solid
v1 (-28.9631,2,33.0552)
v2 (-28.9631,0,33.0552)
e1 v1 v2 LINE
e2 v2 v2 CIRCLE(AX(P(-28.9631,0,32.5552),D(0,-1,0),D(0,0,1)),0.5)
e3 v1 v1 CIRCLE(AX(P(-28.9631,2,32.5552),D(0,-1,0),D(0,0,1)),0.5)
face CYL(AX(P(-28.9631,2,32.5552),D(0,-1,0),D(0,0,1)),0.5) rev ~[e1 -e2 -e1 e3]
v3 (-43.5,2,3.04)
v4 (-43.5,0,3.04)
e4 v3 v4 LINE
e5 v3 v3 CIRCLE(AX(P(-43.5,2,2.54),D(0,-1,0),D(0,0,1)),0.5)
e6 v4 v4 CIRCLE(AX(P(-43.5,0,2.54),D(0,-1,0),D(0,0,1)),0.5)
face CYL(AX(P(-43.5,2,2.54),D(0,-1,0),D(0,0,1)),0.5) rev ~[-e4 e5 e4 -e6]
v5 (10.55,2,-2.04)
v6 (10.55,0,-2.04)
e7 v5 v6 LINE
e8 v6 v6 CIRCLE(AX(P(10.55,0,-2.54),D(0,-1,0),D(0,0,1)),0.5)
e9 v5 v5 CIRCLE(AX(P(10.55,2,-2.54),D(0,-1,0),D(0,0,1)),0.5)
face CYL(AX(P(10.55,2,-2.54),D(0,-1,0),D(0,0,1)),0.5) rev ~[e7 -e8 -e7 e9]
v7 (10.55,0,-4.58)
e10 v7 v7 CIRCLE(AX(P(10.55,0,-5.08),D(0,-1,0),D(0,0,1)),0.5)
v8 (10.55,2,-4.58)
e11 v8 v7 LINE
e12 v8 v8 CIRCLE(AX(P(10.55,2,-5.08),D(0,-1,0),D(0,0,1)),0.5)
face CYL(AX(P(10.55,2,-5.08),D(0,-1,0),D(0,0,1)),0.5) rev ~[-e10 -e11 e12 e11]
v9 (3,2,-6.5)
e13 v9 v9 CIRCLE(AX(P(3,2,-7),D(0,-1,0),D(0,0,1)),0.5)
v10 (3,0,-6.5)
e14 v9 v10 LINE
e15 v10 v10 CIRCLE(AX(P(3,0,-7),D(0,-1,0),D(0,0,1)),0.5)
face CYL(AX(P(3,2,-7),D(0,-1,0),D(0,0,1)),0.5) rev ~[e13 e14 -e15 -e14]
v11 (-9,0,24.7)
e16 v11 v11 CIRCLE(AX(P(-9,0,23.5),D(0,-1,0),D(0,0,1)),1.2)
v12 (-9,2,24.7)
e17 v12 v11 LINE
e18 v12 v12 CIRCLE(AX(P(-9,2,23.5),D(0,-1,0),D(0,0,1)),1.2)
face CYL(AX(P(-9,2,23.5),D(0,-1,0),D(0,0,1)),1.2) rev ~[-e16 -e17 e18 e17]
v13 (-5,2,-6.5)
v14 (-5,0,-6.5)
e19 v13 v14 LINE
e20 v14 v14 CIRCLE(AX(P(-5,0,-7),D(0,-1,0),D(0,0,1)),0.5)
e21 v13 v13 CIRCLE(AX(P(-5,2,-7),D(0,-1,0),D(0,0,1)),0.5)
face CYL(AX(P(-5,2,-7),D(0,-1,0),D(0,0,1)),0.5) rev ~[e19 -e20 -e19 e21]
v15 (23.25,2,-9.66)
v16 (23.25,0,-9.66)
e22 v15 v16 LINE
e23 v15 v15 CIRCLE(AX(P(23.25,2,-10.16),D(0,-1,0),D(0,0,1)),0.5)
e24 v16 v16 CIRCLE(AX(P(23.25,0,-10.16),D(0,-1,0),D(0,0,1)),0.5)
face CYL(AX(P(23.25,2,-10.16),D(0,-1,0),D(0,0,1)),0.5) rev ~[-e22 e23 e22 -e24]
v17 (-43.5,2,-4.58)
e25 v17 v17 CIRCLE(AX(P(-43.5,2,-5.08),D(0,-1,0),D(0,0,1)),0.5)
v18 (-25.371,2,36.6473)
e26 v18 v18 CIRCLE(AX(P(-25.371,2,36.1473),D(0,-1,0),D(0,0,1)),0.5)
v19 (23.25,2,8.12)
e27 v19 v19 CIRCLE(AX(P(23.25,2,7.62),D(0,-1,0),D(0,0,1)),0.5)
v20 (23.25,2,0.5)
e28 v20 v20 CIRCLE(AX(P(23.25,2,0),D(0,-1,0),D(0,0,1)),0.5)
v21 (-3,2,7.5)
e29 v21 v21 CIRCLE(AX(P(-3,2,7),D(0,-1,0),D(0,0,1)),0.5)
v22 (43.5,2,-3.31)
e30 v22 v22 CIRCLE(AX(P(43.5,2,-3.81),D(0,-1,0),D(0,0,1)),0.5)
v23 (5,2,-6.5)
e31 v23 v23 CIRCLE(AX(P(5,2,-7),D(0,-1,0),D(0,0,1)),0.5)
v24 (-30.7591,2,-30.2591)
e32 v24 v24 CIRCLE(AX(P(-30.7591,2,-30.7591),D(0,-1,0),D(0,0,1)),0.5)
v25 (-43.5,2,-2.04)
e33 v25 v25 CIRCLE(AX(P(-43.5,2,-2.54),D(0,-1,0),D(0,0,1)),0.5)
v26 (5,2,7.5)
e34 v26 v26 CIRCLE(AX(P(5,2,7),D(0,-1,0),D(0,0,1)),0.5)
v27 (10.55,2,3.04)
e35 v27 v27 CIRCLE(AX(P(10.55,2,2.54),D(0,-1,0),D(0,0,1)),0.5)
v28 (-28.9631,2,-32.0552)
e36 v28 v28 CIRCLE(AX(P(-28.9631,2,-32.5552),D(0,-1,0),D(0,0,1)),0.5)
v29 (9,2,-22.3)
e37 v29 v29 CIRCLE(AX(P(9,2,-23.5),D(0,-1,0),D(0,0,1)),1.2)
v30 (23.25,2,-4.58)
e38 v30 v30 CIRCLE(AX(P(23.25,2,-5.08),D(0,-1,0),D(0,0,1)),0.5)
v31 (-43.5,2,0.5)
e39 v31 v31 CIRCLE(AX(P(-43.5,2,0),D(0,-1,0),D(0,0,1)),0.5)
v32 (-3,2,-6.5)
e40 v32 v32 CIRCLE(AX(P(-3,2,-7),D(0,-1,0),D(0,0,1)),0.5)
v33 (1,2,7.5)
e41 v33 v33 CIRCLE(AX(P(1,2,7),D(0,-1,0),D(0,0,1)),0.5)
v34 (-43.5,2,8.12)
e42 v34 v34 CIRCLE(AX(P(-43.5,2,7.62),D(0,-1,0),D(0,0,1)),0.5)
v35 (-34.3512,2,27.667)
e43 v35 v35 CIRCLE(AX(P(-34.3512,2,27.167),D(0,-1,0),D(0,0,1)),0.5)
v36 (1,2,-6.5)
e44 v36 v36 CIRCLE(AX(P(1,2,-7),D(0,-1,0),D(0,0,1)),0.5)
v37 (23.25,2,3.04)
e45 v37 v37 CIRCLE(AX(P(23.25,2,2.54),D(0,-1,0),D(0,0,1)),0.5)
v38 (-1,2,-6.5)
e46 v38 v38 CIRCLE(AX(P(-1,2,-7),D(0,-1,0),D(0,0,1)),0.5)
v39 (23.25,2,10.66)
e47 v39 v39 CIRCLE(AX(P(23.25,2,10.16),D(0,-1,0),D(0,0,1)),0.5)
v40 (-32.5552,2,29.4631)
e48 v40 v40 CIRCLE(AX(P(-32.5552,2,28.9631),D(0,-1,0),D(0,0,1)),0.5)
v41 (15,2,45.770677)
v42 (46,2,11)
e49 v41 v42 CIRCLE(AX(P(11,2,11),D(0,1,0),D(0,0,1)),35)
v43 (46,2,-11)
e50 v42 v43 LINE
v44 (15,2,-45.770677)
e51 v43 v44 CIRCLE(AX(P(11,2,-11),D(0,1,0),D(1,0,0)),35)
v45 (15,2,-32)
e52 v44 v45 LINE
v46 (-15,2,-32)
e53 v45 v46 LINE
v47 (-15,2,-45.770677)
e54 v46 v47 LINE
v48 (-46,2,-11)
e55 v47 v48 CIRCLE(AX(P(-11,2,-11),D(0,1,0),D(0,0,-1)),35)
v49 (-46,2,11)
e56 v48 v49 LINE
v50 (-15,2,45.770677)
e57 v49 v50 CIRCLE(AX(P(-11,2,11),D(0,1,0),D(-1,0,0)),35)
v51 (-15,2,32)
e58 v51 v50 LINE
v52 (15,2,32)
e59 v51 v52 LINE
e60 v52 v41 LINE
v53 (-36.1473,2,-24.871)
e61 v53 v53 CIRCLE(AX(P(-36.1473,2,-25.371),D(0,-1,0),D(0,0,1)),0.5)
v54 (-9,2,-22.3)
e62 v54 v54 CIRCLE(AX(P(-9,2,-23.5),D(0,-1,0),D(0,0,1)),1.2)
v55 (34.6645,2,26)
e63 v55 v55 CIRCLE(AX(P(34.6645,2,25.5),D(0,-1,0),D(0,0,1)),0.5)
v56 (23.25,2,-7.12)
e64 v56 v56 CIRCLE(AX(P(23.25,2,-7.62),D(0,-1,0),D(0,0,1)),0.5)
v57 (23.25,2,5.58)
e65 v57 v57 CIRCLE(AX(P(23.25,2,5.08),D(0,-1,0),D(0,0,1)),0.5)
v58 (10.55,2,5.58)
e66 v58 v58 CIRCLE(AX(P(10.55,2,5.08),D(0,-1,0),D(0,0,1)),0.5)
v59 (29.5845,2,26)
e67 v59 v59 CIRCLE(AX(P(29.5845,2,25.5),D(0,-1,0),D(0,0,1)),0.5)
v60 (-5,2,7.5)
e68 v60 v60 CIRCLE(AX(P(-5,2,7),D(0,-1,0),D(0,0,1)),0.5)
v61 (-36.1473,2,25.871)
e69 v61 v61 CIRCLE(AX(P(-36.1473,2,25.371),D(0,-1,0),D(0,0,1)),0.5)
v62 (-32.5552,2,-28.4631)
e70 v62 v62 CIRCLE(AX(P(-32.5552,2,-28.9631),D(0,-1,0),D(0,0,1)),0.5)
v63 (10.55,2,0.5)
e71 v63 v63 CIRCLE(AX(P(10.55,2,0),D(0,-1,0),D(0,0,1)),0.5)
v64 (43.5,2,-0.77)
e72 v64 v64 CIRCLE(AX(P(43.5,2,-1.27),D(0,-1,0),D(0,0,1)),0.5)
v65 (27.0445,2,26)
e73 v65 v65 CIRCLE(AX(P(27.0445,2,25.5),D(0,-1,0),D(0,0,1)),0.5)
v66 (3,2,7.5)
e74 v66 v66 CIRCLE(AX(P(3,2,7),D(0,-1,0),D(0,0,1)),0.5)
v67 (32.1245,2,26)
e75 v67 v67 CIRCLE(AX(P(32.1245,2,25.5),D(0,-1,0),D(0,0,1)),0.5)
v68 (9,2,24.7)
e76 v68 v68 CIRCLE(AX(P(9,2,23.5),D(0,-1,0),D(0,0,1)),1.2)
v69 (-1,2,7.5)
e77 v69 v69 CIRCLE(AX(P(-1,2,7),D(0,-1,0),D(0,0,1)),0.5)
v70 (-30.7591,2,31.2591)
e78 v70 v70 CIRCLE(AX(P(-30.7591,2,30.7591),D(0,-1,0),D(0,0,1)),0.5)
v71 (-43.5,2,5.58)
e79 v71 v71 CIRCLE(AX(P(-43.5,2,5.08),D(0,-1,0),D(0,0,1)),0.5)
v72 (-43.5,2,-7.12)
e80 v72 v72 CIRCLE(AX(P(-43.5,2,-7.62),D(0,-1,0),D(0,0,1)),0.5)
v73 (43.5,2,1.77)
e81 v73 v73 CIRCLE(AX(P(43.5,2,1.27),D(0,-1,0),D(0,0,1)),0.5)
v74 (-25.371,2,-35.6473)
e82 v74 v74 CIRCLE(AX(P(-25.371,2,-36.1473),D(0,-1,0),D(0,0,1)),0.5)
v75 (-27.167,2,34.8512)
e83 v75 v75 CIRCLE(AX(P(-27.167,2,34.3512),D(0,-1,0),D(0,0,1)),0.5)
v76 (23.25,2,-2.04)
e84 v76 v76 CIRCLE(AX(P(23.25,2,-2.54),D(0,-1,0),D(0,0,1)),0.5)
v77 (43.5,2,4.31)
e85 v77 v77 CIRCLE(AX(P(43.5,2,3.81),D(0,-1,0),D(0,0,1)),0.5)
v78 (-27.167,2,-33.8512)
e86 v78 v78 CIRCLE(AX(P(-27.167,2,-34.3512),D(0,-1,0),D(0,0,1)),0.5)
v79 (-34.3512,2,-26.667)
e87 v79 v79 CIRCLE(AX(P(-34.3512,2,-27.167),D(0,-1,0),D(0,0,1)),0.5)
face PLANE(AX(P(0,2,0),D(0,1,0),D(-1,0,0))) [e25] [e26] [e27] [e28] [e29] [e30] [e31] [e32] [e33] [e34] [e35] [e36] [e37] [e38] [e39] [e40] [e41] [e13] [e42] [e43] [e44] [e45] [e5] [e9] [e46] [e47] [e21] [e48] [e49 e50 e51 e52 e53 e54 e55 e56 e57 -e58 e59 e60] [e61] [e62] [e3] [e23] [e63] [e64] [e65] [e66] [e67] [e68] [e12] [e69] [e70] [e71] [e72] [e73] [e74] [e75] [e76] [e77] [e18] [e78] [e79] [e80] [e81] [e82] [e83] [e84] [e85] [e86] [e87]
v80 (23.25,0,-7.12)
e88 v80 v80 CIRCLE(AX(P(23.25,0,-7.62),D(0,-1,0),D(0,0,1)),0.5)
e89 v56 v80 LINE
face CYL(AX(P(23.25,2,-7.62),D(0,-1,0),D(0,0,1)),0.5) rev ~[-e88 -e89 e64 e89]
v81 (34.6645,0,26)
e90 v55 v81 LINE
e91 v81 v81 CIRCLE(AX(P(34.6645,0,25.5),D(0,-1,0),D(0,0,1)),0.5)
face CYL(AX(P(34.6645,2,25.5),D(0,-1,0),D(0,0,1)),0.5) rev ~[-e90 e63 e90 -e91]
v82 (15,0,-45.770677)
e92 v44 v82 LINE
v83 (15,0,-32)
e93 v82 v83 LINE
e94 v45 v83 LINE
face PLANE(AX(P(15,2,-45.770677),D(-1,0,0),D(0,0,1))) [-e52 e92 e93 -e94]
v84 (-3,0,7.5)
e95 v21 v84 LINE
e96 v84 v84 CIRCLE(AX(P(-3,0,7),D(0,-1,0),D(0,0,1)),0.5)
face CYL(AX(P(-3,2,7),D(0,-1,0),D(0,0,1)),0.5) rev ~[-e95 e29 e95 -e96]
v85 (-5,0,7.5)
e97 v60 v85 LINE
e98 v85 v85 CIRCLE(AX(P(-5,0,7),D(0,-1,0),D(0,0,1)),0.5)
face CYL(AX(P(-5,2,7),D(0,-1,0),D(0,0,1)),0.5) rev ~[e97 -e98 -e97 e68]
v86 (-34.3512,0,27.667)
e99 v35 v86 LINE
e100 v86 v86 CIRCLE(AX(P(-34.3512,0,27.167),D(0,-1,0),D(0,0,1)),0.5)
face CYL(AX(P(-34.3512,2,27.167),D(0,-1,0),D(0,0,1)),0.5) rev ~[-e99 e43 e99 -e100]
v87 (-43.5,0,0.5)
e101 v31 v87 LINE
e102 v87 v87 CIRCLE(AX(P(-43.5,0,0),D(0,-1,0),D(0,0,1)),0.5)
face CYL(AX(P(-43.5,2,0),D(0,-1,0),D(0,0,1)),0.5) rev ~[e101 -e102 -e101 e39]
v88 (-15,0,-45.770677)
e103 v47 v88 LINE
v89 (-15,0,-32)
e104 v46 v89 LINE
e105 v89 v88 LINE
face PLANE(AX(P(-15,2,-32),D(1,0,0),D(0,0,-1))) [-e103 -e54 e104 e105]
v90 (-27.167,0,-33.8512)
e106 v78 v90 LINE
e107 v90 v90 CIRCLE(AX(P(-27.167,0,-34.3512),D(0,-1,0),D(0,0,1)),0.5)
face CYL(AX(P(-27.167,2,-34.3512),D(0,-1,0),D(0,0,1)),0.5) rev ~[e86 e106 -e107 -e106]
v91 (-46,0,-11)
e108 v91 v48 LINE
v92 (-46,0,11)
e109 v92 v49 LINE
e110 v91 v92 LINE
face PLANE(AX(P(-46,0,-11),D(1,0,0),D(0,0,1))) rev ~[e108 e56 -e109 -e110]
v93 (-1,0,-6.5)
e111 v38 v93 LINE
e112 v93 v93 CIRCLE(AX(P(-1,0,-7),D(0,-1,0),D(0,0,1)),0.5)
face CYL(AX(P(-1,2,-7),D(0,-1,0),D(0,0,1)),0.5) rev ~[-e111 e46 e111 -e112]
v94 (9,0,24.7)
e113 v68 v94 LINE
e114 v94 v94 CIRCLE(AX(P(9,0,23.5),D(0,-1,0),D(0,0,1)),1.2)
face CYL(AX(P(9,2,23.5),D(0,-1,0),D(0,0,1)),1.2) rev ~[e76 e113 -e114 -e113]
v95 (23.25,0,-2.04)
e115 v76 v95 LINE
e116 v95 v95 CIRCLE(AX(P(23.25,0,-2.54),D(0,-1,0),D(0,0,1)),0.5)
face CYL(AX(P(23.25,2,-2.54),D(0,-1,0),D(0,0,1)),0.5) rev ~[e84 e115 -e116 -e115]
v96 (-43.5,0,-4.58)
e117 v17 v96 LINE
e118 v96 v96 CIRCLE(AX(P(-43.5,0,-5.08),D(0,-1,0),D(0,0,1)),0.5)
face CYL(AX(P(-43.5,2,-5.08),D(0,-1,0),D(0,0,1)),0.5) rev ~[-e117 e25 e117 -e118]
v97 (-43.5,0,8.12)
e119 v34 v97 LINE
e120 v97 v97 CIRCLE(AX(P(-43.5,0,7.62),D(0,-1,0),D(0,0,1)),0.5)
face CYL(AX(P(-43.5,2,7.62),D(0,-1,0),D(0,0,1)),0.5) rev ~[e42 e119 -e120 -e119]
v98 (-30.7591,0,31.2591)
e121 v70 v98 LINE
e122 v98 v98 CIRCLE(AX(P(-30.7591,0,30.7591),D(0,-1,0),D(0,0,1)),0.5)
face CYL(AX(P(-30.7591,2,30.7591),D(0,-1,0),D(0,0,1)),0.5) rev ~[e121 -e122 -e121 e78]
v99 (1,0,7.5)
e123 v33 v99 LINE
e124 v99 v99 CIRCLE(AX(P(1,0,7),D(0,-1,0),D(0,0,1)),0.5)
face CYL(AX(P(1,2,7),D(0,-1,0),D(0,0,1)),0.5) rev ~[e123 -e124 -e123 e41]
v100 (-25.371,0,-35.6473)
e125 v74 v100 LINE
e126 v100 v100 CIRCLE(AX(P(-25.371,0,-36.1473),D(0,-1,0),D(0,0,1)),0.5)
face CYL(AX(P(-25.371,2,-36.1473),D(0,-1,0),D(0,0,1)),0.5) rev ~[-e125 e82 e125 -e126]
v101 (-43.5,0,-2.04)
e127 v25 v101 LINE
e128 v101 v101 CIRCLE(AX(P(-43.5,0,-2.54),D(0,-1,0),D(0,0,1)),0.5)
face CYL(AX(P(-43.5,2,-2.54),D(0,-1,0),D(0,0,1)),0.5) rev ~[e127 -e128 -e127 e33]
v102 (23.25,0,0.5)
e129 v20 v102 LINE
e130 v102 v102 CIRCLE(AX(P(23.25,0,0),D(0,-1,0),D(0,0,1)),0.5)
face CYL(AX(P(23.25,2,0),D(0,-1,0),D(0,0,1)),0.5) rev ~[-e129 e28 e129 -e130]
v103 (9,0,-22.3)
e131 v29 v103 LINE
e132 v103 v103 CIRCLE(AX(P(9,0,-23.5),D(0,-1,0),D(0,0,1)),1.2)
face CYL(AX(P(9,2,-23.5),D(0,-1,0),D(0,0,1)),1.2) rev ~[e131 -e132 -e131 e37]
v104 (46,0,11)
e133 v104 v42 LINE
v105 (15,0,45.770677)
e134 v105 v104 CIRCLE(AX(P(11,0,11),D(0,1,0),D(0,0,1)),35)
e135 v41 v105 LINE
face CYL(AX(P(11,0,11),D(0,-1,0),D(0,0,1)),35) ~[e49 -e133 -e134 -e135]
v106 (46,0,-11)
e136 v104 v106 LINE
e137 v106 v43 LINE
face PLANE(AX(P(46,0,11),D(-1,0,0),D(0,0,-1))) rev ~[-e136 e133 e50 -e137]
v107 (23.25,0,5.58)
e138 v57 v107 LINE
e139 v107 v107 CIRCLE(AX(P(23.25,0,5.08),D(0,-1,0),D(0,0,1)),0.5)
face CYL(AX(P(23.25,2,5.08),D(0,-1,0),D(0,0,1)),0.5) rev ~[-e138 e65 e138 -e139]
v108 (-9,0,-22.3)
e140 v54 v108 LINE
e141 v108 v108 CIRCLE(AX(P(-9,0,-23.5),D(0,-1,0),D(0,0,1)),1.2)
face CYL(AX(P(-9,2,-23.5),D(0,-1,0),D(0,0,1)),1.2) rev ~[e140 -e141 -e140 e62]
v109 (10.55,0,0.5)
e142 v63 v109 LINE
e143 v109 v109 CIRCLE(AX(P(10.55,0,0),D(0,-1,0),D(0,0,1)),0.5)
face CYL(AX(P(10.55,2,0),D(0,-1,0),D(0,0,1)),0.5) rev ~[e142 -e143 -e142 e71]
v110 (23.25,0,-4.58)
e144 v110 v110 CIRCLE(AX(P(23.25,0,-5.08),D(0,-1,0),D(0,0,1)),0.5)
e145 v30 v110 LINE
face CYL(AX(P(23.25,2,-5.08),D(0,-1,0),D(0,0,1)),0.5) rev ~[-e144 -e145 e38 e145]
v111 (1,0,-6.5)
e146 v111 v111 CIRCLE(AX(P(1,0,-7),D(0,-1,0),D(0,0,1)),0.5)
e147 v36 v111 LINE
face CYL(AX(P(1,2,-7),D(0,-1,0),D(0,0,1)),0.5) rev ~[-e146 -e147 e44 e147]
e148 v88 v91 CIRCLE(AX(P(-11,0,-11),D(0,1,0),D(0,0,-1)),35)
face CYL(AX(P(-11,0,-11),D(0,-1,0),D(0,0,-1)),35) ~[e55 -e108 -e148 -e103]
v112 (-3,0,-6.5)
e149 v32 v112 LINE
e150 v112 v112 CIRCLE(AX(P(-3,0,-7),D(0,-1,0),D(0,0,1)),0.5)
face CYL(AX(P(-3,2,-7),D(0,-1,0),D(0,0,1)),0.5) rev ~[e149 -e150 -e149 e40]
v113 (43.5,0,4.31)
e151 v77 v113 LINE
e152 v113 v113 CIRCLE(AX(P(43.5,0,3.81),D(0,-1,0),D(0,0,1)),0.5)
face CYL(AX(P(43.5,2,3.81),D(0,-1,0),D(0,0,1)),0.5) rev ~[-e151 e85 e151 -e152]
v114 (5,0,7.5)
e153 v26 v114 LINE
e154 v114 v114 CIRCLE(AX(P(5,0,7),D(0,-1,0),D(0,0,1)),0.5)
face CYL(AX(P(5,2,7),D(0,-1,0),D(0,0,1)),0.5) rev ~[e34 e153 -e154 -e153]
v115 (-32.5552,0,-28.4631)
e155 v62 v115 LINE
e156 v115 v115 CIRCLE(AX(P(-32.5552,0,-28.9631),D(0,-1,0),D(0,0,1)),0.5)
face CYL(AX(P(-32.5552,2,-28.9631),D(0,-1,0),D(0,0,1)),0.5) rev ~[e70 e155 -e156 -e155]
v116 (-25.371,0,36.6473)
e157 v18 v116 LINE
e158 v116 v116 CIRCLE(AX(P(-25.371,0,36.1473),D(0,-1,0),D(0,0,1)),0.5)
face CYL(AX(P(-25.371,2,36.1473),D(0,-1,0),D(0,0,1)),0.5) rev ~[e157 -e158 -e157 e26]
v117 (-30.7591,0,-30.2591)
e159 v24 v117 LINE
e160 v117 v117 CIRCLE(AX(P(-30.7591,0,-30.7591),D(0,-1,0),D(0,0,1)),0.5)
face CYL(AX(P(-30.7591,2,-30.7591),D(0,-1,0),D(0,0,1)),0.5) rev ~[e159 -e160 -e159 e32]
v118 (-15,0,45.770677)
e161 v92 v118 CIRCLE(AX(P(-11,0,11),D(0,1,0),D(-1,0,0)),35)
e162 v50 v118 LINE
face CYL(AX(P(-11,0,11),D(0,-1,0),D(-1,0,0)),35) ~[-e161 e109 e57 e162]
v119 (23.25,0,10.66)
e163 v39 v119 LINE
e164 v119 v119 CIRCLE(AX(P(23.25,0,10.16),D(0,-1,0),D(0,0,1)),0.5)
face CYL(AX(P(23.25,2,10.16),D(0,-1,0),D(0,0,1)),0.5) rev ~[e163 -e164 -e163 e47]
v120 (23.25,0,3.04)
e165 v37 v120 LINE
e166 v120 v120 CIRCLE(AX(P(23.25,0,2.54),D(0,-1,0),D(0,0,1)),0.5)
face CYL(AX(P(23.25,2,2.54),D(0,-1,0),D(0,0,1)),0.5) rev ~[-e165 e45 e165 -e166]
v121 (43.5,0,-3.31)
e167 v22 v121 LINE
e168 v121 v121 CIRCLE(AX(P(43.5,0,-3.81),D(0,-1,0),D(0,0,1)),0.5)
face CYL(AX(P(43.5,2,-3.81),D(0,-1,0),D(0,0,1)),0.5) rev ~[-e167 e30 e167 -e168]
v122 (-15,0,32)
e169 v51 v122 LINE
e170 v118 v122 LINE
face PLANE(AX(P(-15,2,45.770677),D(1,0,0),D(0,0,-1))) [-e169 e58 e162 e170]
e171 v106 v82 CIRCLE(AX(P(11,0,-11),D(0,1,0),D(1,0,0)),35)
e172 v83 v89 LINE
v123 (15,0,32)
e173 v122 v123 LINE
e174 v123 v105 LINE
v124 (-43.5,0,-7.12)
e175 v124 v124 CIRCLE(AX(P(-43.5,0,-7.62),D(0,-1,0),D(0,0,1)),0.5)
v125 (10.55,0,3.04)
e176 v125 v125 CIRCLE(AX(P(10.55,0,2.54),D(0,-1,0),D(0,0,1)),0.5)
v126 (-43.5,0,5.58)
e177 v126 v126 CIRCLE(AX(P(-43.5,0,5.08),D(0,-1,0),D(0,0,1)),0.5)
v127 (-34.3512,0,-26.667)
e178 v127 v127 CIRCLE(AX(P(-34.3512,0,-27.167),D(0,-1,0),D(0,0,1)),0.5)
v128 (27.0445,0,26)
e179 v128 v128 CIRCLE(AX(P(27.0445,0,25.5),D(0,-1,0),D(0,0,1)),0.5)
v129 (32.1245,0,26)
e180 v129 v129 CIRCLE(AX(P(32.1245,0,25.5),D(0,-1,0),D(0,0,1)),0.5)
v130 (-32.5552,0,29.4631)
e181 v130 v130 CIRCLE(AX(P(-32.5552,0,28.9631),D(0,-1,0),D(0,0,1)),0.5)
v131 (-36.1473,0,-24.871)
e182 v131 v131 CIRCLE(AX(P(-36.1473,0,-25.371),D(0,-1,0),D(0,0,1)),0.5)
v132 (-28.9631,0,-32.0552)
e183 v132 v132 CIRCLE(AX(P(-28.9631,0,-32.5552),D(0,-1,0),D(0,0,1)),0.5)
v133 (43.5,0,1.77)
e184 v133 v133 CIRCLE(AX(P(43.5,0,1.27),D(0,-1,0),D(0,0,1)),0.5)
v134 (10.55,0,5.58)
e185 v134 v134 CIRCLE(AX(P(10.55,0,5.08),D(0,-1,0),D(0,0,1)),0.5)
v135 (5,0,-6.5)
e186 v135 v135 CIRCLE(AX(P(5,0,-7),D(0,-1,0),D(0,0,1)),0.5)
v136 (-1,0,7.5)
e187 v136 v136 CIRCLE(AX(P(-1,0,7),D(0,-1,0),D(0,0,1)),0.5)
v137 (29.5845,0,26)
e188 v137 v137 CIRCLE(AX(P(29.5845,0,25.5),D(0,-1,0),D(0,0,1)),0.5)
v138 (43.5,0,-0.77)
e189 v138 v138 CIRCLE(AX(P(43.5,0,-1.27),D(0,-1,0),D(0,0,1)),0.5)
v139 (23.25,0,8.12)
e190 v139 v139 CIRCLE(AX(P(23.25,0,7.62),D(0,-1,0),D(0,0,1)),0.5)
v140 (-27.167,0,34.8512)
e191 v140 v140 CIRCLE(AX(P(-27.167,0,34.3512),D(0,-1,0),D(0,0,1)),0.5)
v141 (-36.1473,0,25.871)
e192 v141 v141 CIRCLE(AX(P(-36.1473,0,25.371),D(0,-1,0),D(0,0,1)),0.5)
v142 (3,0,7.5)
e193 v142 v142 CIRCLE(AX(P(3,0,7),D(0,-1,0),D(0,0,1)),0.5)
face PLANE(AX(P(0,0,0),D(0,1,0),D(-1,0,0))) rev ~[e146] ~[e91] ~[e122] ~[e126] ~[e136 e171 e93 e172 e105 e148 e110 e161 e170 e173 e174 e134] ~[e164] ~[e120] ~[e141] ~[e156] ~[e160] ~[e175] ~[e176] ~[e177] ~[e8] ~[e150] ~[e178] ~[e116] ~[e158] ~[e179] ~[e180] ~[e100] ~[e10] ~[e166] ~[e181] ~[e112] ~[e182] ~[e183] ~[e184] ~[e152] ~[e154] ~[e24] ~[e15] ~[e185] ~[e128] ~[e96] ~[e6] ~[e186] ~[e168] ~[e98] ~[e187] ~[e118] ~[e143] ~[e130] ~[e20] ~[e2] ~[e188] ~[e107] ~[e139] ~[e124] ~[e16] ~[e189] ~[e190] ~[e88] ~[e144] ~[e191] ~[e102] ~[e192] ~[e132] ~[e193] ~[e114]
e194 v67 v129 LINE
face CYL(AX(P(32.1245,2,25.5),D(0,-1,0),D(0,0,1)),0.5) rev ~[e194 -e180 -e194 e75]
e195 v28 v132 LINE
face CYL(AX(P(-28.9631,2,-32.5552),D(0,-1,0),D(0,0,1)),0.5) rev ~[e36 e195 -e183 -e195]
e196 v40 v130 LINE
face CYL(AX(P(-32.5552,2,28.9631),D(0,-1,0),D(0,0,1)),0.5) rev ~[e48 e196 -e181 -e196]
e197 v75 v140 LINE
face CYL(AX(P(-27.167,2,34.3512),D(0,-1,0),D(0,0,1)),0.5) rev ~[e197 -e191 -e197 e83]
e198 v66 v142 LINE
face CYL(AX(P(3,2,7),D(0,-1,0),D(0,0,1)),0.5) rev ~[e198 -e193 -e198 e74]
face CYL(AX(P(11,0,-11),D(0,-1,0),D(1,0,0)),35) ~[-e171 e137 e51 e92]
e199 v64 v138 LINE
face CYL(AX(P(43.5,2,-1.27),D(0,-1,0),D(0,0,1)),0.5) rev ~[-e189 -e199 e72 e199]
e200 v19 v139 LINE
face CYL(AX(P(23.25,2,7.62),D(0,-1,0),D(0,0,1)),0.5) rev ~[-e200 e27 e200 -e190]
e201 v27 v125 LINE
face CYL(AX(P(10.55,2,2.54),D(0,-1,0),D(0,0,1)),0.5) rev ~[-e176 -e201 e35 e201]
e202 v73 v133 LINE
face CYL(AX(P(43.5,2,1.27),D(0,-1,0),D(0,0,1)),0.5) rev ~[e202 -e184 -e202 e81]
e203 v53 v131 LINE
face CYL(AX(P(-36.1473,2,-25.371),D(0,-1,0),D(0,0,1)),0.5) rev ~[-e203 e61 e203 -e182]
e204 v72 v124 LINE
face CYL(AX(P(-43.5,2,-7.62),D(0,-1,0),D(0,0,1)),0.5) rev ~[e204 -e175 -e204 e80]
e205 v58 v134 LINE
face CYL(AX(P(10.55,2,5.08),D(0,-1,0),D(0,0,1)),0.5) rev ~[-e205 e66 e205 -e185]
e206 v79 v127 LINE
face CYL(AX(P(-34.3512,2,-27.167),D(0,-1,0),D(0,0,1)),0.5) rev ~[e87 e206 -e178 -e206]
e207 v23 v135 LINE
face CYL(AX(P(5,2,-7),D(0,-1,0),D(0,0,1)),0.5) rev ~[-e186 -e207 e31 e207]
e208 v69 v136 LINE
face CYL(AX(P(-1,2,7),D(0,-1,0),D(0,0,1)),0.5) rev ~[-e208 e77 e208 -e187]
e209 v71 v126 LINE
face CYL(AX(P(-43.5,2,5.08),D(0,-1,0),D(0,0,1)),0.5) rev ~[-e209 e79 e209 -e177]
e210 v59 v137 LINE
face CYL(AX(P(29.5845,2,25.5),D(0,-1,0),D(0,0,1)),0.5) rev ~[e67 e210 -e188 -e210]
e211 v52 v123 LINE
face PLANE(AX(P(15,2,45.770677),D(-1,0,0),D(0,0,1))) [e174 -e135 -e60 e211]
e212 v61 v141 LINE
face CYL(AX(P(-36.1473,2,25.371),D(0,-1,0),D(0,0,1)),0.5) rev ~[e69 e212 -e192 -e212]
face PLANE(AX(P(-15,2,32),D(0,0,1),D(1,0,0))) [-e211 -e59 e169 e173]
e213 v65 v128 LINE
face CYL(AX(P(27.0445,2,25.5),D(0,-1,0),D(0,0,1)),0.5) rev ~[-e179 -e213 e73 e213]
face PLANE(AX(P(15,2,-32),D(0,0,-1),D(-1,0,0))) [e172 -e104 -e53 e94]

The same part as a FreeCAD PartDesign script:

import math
import FreeCAD as App
import Part
import Sketcher
Q = App.Units.Quantity


def add_polygon(sketch, points):
    """Adds a closed chain of lines whose ends are joined by coincident constraints."""
    first, n = sketch.GeometryCount, len(points)
    for a, b in zip(points, points[1:] + points[:1]):
        sketch.addGeometry(Part.LineSegment(App.Vector(*a, 0), App.Vector(*b, 0)), False)
    for i in range(n):
        sketch.addConstraint(Sketcher.Constraint("Coincident", first + i, 2, first + (i + 1) % n, 1))

doc = App.newDocument("Part")
body = doc.addObject("PartDesign::Body", "Body")

# Sketch on XZ plane
sketch1 = doc.addObject("Sketcher::SketchObject", "Sketch")
body.addObject(sketch1)
sketch1.AttachmentSupport = (doc.XZ_Plane, [""])
sketch1.MapMode = "FlatFace"
sketch1.addGeometry([
    Part.ArcOfCircle(Part.Circle(App.Vector(-11, 11, 0), App.Vector(0, 0, 1), 35), math.radians(90), math.radians(180)),  # 0
    Part.LineSegment(App.Vector(-11, 46, 0), App.Vector(11, 46, 0)),  # 1
    Part.ArcOfCircle(Part.Circle(App.Vector(11, 11, 0), App.Vector(0, 0, 1), 35), math.radians(0), math.radians(90)),  # 2
    Part.LineSegment(App.Vector(46, 11, 0), App.Vector(46, -11, 0)),  # 3
    Part.ArcOfCircle(Part.Circle(App.Vector(11, -11, 0), App.Vector(0, 0, 1), 35), math.radians(-90), math.radians(0)),  # 4
    Part.LineSegment(App.Vector(11, -46, 0), App.Vector(-11, -46, 0)),  # 5
    Part.ArcOfCircle(Part.Circle(App.Vector(-11, -11, 0), App.Vector(0, 0, 1), 35), math.radians(180), math.radians(270)),  # 6
    Part.LineSegment(App.Vector(-46, -11, 0), App.Vector(-46, 11, 0)),  # 7
], False)
sketch1.addConstraint([
    Sketcher.Constraint("Tangent", 0, 1, 1, 1),
    Sketcher.Constraint("Tangent", 1, 2, 2, 2),
    Sketcher.Constraint("Tangent", 2, 1, 3, 1),
    Sketcher.Constraint("Tangent", 3, 2, 4, 2),
    Sketcher.Constraint("Tangent", 4, 1, 5, 1),
    Sketcher.Constraint("Tangent", 5, 2, 6, 2),
    Sketcher.Constraint("Tangent", 6, 1, 7, 1),
    Sketcher.Constraint("Tangent", 7, 2, 0, 2),
    Sketcher.Constraint("Horizontal", 1),
    Sketcher.Constraint("Vertical", 3),
    Sketcher.Constraint("Horizontal", 5),
    Sketcher.Constraint("Vertical", 7),
    Sketcher.Constraint("Equal", 0, 2),
    Sketcher.Constraint("Equal", 2, 4),
    Sketcher.Constraint("Equal", 4, 6),
    Sketcher.Constraint("Symmetric", 0, 3, 4, 3, -1, 1),
    Sketcher.Constraint("Equal", 5, 3),
    Sketcher.Constraint("Radius", 0, Q("35 mm")),
    Sketcher.Constraint("DistanceX", 1, 1, 1, 2, Q("22 mm")),
])
pad1 = doc.addObject("PartDesign::Pad", "Pad")
body.addObject(pad1)
pad1.Profile = sketch1
pad1.Length = 2
pad1.Reversed = True

# Sketch on XZ plane
sketch2 = doc.addObject("Sketcher::SketchObject", "Sketch001")
body.addObject(sketch2)
sketch2.AttachmentSupport = (doc.XZ_Plane, [""])
sketch2.MapMode = "FlatFace"
sketch2.AttachmentOffset = App.Placement(App.Vector(0, 0, -2), App.Rotation())
add_polygon(sketch2, [(-15, -32), (15, -32), (15, -46), (-15, -46)])  # lines 0-3
add_polygon(sketch2, [(15, 46), (15, 32), (-15, 32), (-15, 46)])  # lines 4-7
sketch2.addConstraint([
    Sketcher.Constraint("Horizontal", 0),
    Sketcher.Constraint("Vertical", 1),
    Sketcher.Constraint("Horizontal", 2),
    Sketcher.Constraint("Vertical", 3),
    Sketcher.Constraint("Vertical", 4),
    Sketcher.Constraint("Horizontal", 5),
    Sketcher.Constraint("Vertical", 6),
    Sketcher.Constraint("Horizontal", 7),
    Sketcher.Constraint("Symmetric", 3, 2, 4, 2, -1, 1),
    Sketcher.Constraint("Symmetric", 1, 2, 6, 2, -1, 1),
    Sketcher.Constraint("Vertical", 1, 2, 4, 2),
    Sketcher.Constraint("DistanceX", 0, 1, 0, 2, Q("30 mm")),
    Sketcher.Constraint("DistanceY", 1, 2, 1, 1, Q("14 mm")),
    Sketcher.Constraint("DistanceY", 0, 2, -1, 1, Q("32 mm")),
])
pocket1 = doc.addObject("PartDesign::Pocket", "Pocket")
body.addObject(pocket1)
pocket1.Profile = sketch2
pocket1.Length = 10
pocket1.Reversed = True

# Sketch on XZ plane
sketch3 = doc.addObject("Sketcher::SketchObject", "Sketch002")
body.addObject(sketch3)
sketch3.AttachmentSupport = (doc.XZ_Plane, [""])
sketch3.MapMode = "FlatFace"
sketch3.AttachmentOffset = App.Placement(App.Vector(0, 0, -2), App.Rotation())
sketch3.addGeometry([
    Part.Circle(App.Vector(-9, 23.5, 0), App.Vector(0, 0, 1), 1.2),
    Part.Circle(App.Vector(9, 23.5, 0), App.Vector(0, 0, 1), 1.2),
    Part.Circle(App.Vector(-9, -23.5, 0), App.Vector(0, 0, 1), 1.2),
    Part.Circle(App.Vector(9, -23.5, 0), App.Vector(0, 0, 1), 1.2),
], False)
sketch3.addConstraint([
    Sketcher.Constraint("Equal", 0, 1),
    Sketcher.Constraint("Equal", 1, 2),
    Sketcher.Constraint("Equal", 2, 3),
    Sketcher.Constraint("Symmetric", 1, 3, 2, 3, -1, 1),
    Sketcher.Constraint("Symmetric", 0, 3, 3, 3, -1, 1),
    Sketcher.Constraint("Symmetric", 0, 3, 1, 3, -2),
    Sketcher.Constraint("Diameter", 0, Q("2.4 mm")),
    Sketcher.Constraint("DistanceX", 0, 3, -1, 1, Q("9 mm")),
    Sketcher.Constraint("DistanceY", 2, 3, 0, 3, Q("47 mm")),
])
doc.recompute()
hole = doc.addObject("PartDesign::Hole", "Hole")
body.addObject(hole)
hole.Profile = sketch3
hole.ThreadType = "None"
hole.Diameter = 2.4
hole.DepthType = "ThroughAll"
hole.Reversed = True

# Sketch on XZ plane
sketch4 = doc.addObject("Sketcher::SketchObject", "Sketch003")
body.addObject(sketch4)
sketch4.AttachmentSupport = (doc.XZ_Plane, [""])
sketch4.MapMode = "FlatFace"
sketch4.AttachmentOffset = App.Placement(App.Vector(0, 0, -2), App.Rotation())
sketch4.addGeometry([
    Part.Circle(App.Vector(-43.5, 0, 0), App.Vector(0, 0, 1), 0.5),  # 0
    Part.Circle(App.Vector(-43.5, -2.5, 0), App.Vector(0, 0, 1), 0.5),  # 1
    Part.Circle(App.Vector(-43.5, 2.5, 0), App.Vector(0, 0, 1), 0.5),  # 2
    Part.Circle(App.Vector(-43.5, -5.1, 0), App.Vector(0, 0, 1), 0.5),  # 3
    Part.Circle(App.Vector(-43.5, 5.1, 0), App.Vector(0, 0, 1), 0.5),  # 4
    Part.Circle(App.Vector(-43.5, 7.6, 0), App.Vector(0, 0, 1), 0.5),  # 5
    Part.Circle(App.Vector(-43.5, -7.6, 0), App.Vector(0, 0, 1), 0.5),  # 6
    Part.Circle(App.Vector(-36.1, 25.4, 0), App.Vector(0, 0, 1), 0.5),  # 7
    Part.Circle(App.Vector(-30.8, 30.8, 0), App.Vector(0, 0, 1), 0.5),  # 8
    Part.Circle(App.Vector(-34.4, 27.2, 0), App.Vector(0, 0, 1), 0.5),  # 9
    Part.Circle(App.Vector(-32.6, 29, 0), App.Vector(0, 0, 1), 0.5),  # 10
    Part.Circle(App.Vector(-27.2, 34.4, 0), App.Vector(0, 0, 1), 0.5),  # 11
    Part.Circle(App.Vector(-29, 32.6, 0), App.Vector(0, 0, 1), 0.5),  # 12
    Part.Circle(App.Vector(-25.4, 36.1, 0), App.Vector(0, 0, 1), 0.5),  # 13
    Part.Circle(App.Vector(-29, -32.6, 0), App.Vector(0, 0, 1), 0.5),  # 14
    Part.Circle(App.Vector(-27.2, -34.4, 0), App.Vector(0, 0, 1), 0.5),  # 15
    Part.Circle(App.Vector(-32.6, -29, 0), App.Vector(0, 0, 1), 0.5),  # 16
    Part.Circle(App.Vector(-34.4, -27.2, 0), App.Vector(0, 0, 1), 0.5),  # 17
    Part.Circle(App.Vector(-30.8, -30.8, 0), App.Vector(0, 0, 1), 0.5),  # 18
    Part.Circle(App.Vector(-25.4, -36.1, 0), App.Vector(0, 0, 1), 0.5),  # 19
    Part.Circle(App.Vector(-36.1, -25.4, 0), App.Vector(0, 0, 1), 0.5),  # 20
], False)
sketch4.addConstraint([
    Sketcher.Constraint("Equal", 0, 1),
    Sketcher.Constraint("Equal", 1, 2),
    Sketcher.Constraint("Equal", 2, 3),
    Sketcher.Constraint("Equal", 3, 4),
    Sketcher.Constraint("Equal", 4, 5),
    Sketcher.Constraint("Equal", 5, 6),
    Sketcher.Constraint("Equal", 6, 7),
    Sketcher.Constraint("Equal", 7, 8),
    Sketcher.Constraint("Equal", 8, 9),
    Sketcher.Constraint("Equal", 9, 10),
    Sketcher.Constraint("Equal", 10, 11),
    Sketcher.Constraint("Equal", 11, 12),
    Sketcher.Constraint("Equal", 12, 13),
    Sketcher.Constraint("Equal", 13, 14),
    Sketcher.Constraint("Equal", 14, 15),
    Sketcher.Constraint("Equal", 15, 16),
    Sketcher.Constraint("Equal", 16, 17),
    Sketcher.Constraint("Equal", 17, 18),
    Sketcher.Constraint("Equal", 18, 19),
    Sketcher.Constraint("Equal", 19, 20),
    Sketcher.Constraint("Symmetric", 1, 3, 2, 3, -1),
    Sketcher.Constraint("Symmetric", 3, 3, 4, 3, -1),
    Sketcher.Constraint("Symmetric", 5, 3, 6, 3, -1),
    Sketcher.Constraint("Symmetric", 12, 3, 14, 3, -1),
    Sketcher.Constraint("Symmetric", 11, 3, 15, 3, -1),
    Sketcher.Constraint("Symmetric", 10, 3, 16, 3, -1),
    Sketcher.Constraint("Symmetric", 9, 3, 17, 3, -1),
    Sketcher.Constraint("Symmetric", 8, 3, 18, 3, -1),
    Sketcher.Constraint("Symmetric", 13, 3, 19, 3, -1),
    Sketcher.Constraint("Symmetric", 7, 3, 20, 3, -1),
    Sketcher.Constraint("PointOnObject", 0, 3, -1),
    Sketcher.Constraint("Vertical", 0, 3, 1, 3),
    Sketcher.Constraint("Vertical", 2, 3, 3, 3),
    Sketcher.Constraint("Vertical", 4, 3, 5, 3),
    Sketcher.Constraint("Diameter", 0, Q("1 mm")),
    Sketcher.Constraint("DistanceX", 0, 3, -1, 1, Q("43.5 mm")),
    Sketcher.Constraint("DistanceY", 3, 3, 5, 3, Q("12.7 mm")),
    Sketcher.Constraint("DistanceY", 1, 3, -1, 1, Q("2.54 mm")),
    Sketcher.Constraint("DistanceY", 3, 3, -1, 1, Q("5.08 mm")),
    Sketcher.Constraint("DistanceY", -1, 1, 7, 3, Q("25.371 mm")),
    Sketcher.Constraint("DistanceX", 8, 3, -1, 1, Q("30.759 mm")),
    Sketcher.Constraint("DistanceY", -1, 1, 8, 3, Q("30.759 mm")),
    Sketcher.Constraint("DistanceY", -1, 1, 9, 3, Q("27.167 mm")),
    Sketcher.Constraint("DistanceY", -1, 1, 10, 3, Q("28.963 mm")),
    Sketcher.Constraint("DistanceX", 11, 3, -1, 1, Q("27.167 mm")),
    Sketcher.Constraint("DistanceX", 12, 3, -1, 1, Q("28.963 mm")),
    Sketcher.Constraint("DistanceX", 13, 3, -1, 1, Q("25.371 mm")),
    Sketcher.Constraint("DistanceX", 7, 3, 9, 3, Q("1.796 mm")),
    Sketcher.Constraint("DistanceX", 9, 3, 8, 3, Q("3.592 mm")),
    Sketcher.Constraint("DistanceX", 10, 3, 8, 3, Q("1.796 mm")),
    Sketcher.Constraint("DistanceY", 8, 3, 11, 3, Q("3.592 mm")),
    Sketcher.Constraint("DistanceY", 8, 3, 12, 3, Q("1.796 mm")),
    Sketcher.Constraint("DistanceY", 11, 3, 13, 3, Q("1.796 mm")),
])
doc.recompute()
hole2 = doc.addObject("PartDesign::Hole", "Hole001")
body.addObject(hole2)
hole2.Profile = sketch4
hole2.ThreadType = "None"
hole2.Diameter = 1
hole2.DepthType = "ThroughAll"
hole2.Reversed = True

# Sketch on XZ plane
sketch5 = doc.addObject("Sketcher::SketchObject", "Sketch004")
body.addObject(sketch5)
sketch5.AttachmentSupport = (doc.XZ_Plane, [""])
sketch5.MapMode = "FlatFace"
sketch5.AttachmentOffset = App.Placement(App.Vector(0, 0, -2), App.Rotation())
sketch5.addGeometry([
    Part.Circle(App.Vector(-1, 7, 0), App.Vector(0, 0, 1), 0.5),  # 0
    Part.Circle(App.Vector(-3, 7, 0), App.Vector(0, 0, 1), 0.5),  # 1
    Part.Circle(App.Vector(-5, 7, 0), App.Vector(0, 0, 1), 0.5),  # 2
    Part.Circle(App.Vector(1, 7, 0), App.Vector(0, 0, 1), 0.5),  # 3
    Part.Circle(App.Vector(3, 7, 0), App.Vector(0, 0, 1), 0.5),  # 4
    Part.Circle(App.Vector(5, 7, 0), App.Vector(0, 0, 1), 0.5),  # 5
    Part.Circle(App.Vector(5, -7, 0), App.Vector(0, 0, 1), 0.5),  # 6
    Part.Circle(App.Vector(3, -7, 0), App.Vector(0, 0, 1), 0.5),  # 7
    Part.Circle(App.Vector(1, -7, 0), App.Vector(0, 0, 1), 0.5),  # 8
    Part.Circle(App.Vector(-5, -7, 0), App.Vector(0, 0, 1), 0.5),  # 9
    Part.Circle(App.Vector(-3, -7, 0), App.Vector(0, 0, 1), 0.5),  # 10
    Part.Circle(App.Vector(-1, -7, 0), App.Vector(0, 0, 1), 0.5),  # 11
], False)
sketch5.addConstraint([
    Sketcher.Constraint("Equal", 0, 1),
    Sketcher.Constraint("Equal", 1, 2),
    Sketcher.Constraint("Equal", 2, 3),
    Sketcher.Constraint("Equal", 3, 4),
    Sketcher.Constraint("Equal", 4, 5),
    Sketcher.Constraint("Equal", 5, 6),
    Sketcher.Constraint("Equal", 6, 7),
    Sketcher.Constraint("Equal", 7, 8),
    Sketcher.Constraint("Equal", 8, 9),
    Sketcher.Constraint("Equal", 9, 10),
    Sketcher.Constraint("Equal", 10, 11),
    Sketcher.Constraint("Symmetric", 2, 3, 6, 3, -1, 1),
    Sketcher.Constraint("Symmetric", 1, 3, 7, 3, -1, 1),
    Sketcher.Constraint("Symmetric", 0, 3, 8, 3, -1, 1),
    Sketcher.Constraint("Symmetric", 5, 3, 9, 3, -1, 1),
    Sketcher.Constraint("Symmetric", 4, 3, 10, 3, -1, 1),
    Sketcher.Constraint("Symmetric", 3, 3, 11, 3, -1, 1),
    Sketcher.Constraint("Symmetric", 0, 3, 3, 3, -2),
    Sketcher.Constraint("Symmetric", 1, 3, 4, 3, -2),
    Sketcher.Constraint("Symmetric", 2, 3, 5, 3, -2),
    Sketcher.Constraint("Horizontal", 0, 3, 1, 3),
    Sketcher.Constraint("Horizontal", 1, 3, 2, 3),
    Sketcher.Constraint("Diameter", 0, Q("1 mm")),
    Sketcher.Constraint("DistanceX", 0, 3, -1, 1, Q("1 mm")),
    Sketcher.Constraint("DistanceY", -1, 1, 0, 3, Q("7 mm")),
    Sketcher.Constraint("DistanceX", 1, 3, -1, 1, Q("3 mm")),
    Sketcher.Constraint("DistanceX", 2, 3, -1, 1, Q("5 mm")),
])
doc.recompute()
hole3 = doc.addObject("PartDesign::Hole", "Hole002")
body.addObject(hole3)
hole3.Profile = sketch5
hole3.ThreadType = "None"
hole3.Diameter = 1
hole3.DepthType = "ThroughAll"
hole3.Reversed = True

# Sketch on XZ plane
sketch6 = doc.addObject("Sketcher::SketchObject", "Sketch005")
body.addObject(sketch6)
sketch6.AttachmentSupport = (doc.XZ_Plane, [""])
sketch6.MapMode = "FlatFace"
sketch6.AttachmentOffset = App.Placement(App.Vector(0, 0, -2), App.Rotation())
sketch6.addGeometry([
    Part.Circle(App.Vector(10.6, 5.1, 0), App.Vector(0, 0, 1), 0.5),  # 0
    Part.Circle(App.Vector(10.6, 2.5, 0), App.Vector(0, 0, 1), 0.5),  # 1
    Part.Circle(App.Vector(10.6, -5.1, 0), App.Vector(0, 0, 1), 0.5),  # 2
    Part.Circle(App.Vector(10.6, -2.5, 0), App.Vector(0, 0, 1), 0.5),  # 3
    Part.Circle(App.Vector(10.6, 0, 0), App.Vector(0, 0, 1), 0.5),  # 4
    Part.Circle(App.Vector(23.2, 7.6, 0), App.Vector(0, 0, 1), 0.5),  # 5
    Part.Circle(App.Vector(23.2, 10.2, 0), App.Vector(0, 0, 1), 0.5),  # 6
    Part.Circle(App.Vector(23.2, -7.6, 0), App.Vector(0, 0, 1), 0.5),  # 7
    Part.Circle(App.Vector(23.2, -10.2, 0), App.Vector(0, 0, 1), 0.5),  # 8
    Part.Circle(App.Vector(23.2, 0, 0), App.Vector(0, 0, 1), 0.5),  # 9
    Part.Circle(App.Vector(23.2, -2.5, 0), App.Vector(0, 0, 1), 0.5),  # 10
    Part.Circle(App.Vector(23.2, -5.1, 0), App.Vector(0, 0, 1), 0.5),  # 11
    Part.Circle(App.Vector(23.2, 2.5, 0), App.Vector(0, 0, 1), 0.5),  # 12
    Part.Circle(App.Vector(23.2, 5.1, 0), App.Vector(0, 0, 1), 0.5),  # 13
], False)
sketch6.addConstraint([
    Sketcher.Constraint("Equal", 0, 1),
    Sketcher.Constraint("Equal", 1, 2),
    Sketcher.Constraint("Equal", 2, 3),
    Sketcher.Constraint("Equal", 3, 4),
    Sketcher.Constraint("Equal", 4, 5),
    Sketcher.Constraint("Equal", 5, 6),
    Sketcher.Constraint("Equal", 6, 7),
    Sketcher.Constraint("Equal", 7, 8),
    Sketcher.Constraint("Equal", 8, 9),
    Sketcher.Constraint("Equal", 9, 10),
    Sketcher.Constraint("Equal", 10, 11),
    Sketcher.Constraint("Equal", 11, 12),
    Sketcher.Constraint("Equal", 12, 13),
    Sketcher.Constraint("Symmetric", 0, 3, 2, 3, -1),
    Sketcher.Constraint("Symmetric", 1, 3, 3, 3, -1),
    Sketcher.Constraint("Symmetric", 5, 3, 7, 3, -1),
    Sketcher.Constraint("Symmetric", 6, 3, 8, 3, -1),
    Sketcher.Constraint("Symmetric", 10, 3, 12, 3, -1),
    Sketcher.Constraint("Symmetric", 11, 3, 13, 3, -1),
    Sketcher.Constraint("PointOnObject", 4, 3, -1),
    Sketcher.Constraint("PointOnObject", 9, 3, -1),
    Sketcher.Constraint("Horizontal", 3, 3, 10, 3),
    Sketcher.Constraint("Horizontal", 2, 3, 11, 3),
    Sketcher.Constraint("Vertical", 0, 3, 1, 3),
    Sketcher.Constraint("Vertical", 3, 3, 4, 3),
    Sketcher.Constraint("Vertical", 5, 3, 6, 3),
    Sketcher.Constraint("Vertical", 8, 3, 9, 3),
    Sketcher.Constraint("Vertical", 9, 3, 10, 3),
    Sketcher.Constraint("Vertical", 10, 3, 11, 3),
    Sketcher.Constraint("Diameter", 0, Q("1 mm")),
    Sketcher.Constraint("DistanceX", 0, 3, 5, 3, Q("12.7 mm")),
    Sketcher.Constraint("DistanceY", 2, 3, 5, 3, Q("12.7 mm")),
    Sketcher.Constraint("DistanceY", 3, 3, 6, 3, Q("12.7 mm")),
    Sketcher.Constraint("DistanceX", -1, 1, 0, 3, Q("10.55 mm")),
    Sketcher.Constraint("DistanceY", -1, 1, 0, 3, Q("5.08 mm")),
    Sketcher.Constraint("DistanceY", -1, 1, 1, 3, Q("2.54 mm")),
])
doc.recompute()
hole4 = doc.addObject("PartDesign::Hole", "Hole003")
body.addObject(hole4)
hole4.Profile = sketch6
hole4.ThreadType = "None"
hole4.Diameter = 1
hole4.DepthType = "ThroughAll"
hole4.Reversed = True

# Sketch on XZ plane
sketch7 = doc.addObject("Sketcher::SketchObject", "Sketch006")
body.addObject(sketch7)
sketch7.AttachmentSupport = (doc.XZ_Plane, [""])
sketch7.MapMode = "FlatFace"
sketch7.AttachmentOffset = App.Placement(App.Vector(0, 0, -2), App.Rotation())
sketch7.addGeometry([
    Part.Circle(App.Vector(43.5, 3.8, 0), App.Vector(0, 0, 1), 0.5),
    Part.Circle(App.Vector(43.5, -3.8, 0), App.Vector(0, 0, 1), 0.5),
    Part.Circle(App.Vector(43.5, -1.3, 0), App.Vector(0, 0, 1), 0.5),
    Part.Circle(App.Vector(43.5, 1.3, 0), App.Vector(0, 0, 1), 0.5),
], False)
sketch7.addConstraint([
    Sketcher.Constraint("Equal", 0, 1),
    Sketcher.Constraint("Equal", 1, 2),
    Sketcher.Constraint("Equal", 2, 3),
    Sketcher.Constraint("Symmetric", 0, 3, 1, 3, -1),
    Sketcher.Constraint("Symmetric", 2, 3, 3, 3, -1),
    Sketcher.Constraint("Vertical", 1, 3, 2, 3),
    Sketcher.Constraint("Diameter", 0, Q("1 mm")),
    Sketcher.Constraint("DistanceX", -1, 1, 0, 3, Q("43.5 mm")),
    Sketcher.Constraint("DistanceY", -1, 1, 0, 3, Q("3.81 mm")),
    Sketcher.Constraint("DistanceY", 2, 3, -1, 1, Q("1.27 mm")),
])
doc.recompute()
hole5 = doc.addObject("PartDesign::Hole", "Hole004")
body.addObject(hole5)
hole5.Profile = sketch7
hole5.ThreadType = "None"
hole5.Diameter = 1
hole5.DepthType = "ThroughAll"
hole5.Reversed = True

# Sketch on XZ plane
sketch8 = doc.addObject("Sketcher::SketchObject", "Sketch007")
body.addObject(sketch8)
sketch8.AttachmentSupport = (doc.XZ_Plane, [""])
sketch8.MapMode = "FlatFace"
sketch8.AttachmentOffset = App.Placement(App.Vector(0, 0, -2), App.Rotation())
sketch8.addGeometry([
    Part.Circle(App.Vector(34.7, 25.5, 0), App.Vector(0, 0, 1), 0.5),
    Part.Circle(App.Vector(32.1, 25.5, 0), App.Vector(0, 0, 1), 0.5),
    Part.Circle(App.Vector(29.6, 25.5, 0), App.Vector(0, 0, 1), 0.5),
    Part.Circle(App.Vector(27, 25.5, 0), App.Vector(0, 0, 1), 0.5),
], False)
sketch8.addConstraint([
    Sketcher.Constraint("Equal", 0, 1),
    Sketcher.Constraint("Equal", 1, 2),
    Sketcher.Constraint("Equal", 2, 3),
    Sketcher.Constraint("Horizontal", 0, 3, 1, 3),
    Sketcher.Constraint("Horizontal", 1, 3, 2, 3),
    Sketcher.Constraint("Horizontal", 2, 3, 3, 3),
    Sketcher.Constraint("Diameter", 0, Q("1 mm")),
    Sketcher.Constraint("DistanceY", -1, 1, 0, 3, Q("25.5 mm")),
    Sketcher.Constraint("DistanceX", 1, 3, 0, 3, Q("2.54 mm")),
    Sketcher.Constraint("DistanceX", 2, 3, 1, 3, Q("2.54 mm")),
    Sketcher.Constraint("DistanceX", 3, 3, 2, 3, Q("2.54 mm")),
    Sketcher.Constraint("DistanceX", -1, 1, 0, 3, Q("34.6645 mm")),
])
doc.recompute()
hole6 = doc.addObject("PartDesign::Hole", "Hole005")
body.addObject(hole6)
hole6.Profile = sketch8
hole6.ThreadType = "None"
hole6.Diameter = 1
hole6.DepthType = "ThroughAll"
hole6.Reversed = True

doc.recompute()
